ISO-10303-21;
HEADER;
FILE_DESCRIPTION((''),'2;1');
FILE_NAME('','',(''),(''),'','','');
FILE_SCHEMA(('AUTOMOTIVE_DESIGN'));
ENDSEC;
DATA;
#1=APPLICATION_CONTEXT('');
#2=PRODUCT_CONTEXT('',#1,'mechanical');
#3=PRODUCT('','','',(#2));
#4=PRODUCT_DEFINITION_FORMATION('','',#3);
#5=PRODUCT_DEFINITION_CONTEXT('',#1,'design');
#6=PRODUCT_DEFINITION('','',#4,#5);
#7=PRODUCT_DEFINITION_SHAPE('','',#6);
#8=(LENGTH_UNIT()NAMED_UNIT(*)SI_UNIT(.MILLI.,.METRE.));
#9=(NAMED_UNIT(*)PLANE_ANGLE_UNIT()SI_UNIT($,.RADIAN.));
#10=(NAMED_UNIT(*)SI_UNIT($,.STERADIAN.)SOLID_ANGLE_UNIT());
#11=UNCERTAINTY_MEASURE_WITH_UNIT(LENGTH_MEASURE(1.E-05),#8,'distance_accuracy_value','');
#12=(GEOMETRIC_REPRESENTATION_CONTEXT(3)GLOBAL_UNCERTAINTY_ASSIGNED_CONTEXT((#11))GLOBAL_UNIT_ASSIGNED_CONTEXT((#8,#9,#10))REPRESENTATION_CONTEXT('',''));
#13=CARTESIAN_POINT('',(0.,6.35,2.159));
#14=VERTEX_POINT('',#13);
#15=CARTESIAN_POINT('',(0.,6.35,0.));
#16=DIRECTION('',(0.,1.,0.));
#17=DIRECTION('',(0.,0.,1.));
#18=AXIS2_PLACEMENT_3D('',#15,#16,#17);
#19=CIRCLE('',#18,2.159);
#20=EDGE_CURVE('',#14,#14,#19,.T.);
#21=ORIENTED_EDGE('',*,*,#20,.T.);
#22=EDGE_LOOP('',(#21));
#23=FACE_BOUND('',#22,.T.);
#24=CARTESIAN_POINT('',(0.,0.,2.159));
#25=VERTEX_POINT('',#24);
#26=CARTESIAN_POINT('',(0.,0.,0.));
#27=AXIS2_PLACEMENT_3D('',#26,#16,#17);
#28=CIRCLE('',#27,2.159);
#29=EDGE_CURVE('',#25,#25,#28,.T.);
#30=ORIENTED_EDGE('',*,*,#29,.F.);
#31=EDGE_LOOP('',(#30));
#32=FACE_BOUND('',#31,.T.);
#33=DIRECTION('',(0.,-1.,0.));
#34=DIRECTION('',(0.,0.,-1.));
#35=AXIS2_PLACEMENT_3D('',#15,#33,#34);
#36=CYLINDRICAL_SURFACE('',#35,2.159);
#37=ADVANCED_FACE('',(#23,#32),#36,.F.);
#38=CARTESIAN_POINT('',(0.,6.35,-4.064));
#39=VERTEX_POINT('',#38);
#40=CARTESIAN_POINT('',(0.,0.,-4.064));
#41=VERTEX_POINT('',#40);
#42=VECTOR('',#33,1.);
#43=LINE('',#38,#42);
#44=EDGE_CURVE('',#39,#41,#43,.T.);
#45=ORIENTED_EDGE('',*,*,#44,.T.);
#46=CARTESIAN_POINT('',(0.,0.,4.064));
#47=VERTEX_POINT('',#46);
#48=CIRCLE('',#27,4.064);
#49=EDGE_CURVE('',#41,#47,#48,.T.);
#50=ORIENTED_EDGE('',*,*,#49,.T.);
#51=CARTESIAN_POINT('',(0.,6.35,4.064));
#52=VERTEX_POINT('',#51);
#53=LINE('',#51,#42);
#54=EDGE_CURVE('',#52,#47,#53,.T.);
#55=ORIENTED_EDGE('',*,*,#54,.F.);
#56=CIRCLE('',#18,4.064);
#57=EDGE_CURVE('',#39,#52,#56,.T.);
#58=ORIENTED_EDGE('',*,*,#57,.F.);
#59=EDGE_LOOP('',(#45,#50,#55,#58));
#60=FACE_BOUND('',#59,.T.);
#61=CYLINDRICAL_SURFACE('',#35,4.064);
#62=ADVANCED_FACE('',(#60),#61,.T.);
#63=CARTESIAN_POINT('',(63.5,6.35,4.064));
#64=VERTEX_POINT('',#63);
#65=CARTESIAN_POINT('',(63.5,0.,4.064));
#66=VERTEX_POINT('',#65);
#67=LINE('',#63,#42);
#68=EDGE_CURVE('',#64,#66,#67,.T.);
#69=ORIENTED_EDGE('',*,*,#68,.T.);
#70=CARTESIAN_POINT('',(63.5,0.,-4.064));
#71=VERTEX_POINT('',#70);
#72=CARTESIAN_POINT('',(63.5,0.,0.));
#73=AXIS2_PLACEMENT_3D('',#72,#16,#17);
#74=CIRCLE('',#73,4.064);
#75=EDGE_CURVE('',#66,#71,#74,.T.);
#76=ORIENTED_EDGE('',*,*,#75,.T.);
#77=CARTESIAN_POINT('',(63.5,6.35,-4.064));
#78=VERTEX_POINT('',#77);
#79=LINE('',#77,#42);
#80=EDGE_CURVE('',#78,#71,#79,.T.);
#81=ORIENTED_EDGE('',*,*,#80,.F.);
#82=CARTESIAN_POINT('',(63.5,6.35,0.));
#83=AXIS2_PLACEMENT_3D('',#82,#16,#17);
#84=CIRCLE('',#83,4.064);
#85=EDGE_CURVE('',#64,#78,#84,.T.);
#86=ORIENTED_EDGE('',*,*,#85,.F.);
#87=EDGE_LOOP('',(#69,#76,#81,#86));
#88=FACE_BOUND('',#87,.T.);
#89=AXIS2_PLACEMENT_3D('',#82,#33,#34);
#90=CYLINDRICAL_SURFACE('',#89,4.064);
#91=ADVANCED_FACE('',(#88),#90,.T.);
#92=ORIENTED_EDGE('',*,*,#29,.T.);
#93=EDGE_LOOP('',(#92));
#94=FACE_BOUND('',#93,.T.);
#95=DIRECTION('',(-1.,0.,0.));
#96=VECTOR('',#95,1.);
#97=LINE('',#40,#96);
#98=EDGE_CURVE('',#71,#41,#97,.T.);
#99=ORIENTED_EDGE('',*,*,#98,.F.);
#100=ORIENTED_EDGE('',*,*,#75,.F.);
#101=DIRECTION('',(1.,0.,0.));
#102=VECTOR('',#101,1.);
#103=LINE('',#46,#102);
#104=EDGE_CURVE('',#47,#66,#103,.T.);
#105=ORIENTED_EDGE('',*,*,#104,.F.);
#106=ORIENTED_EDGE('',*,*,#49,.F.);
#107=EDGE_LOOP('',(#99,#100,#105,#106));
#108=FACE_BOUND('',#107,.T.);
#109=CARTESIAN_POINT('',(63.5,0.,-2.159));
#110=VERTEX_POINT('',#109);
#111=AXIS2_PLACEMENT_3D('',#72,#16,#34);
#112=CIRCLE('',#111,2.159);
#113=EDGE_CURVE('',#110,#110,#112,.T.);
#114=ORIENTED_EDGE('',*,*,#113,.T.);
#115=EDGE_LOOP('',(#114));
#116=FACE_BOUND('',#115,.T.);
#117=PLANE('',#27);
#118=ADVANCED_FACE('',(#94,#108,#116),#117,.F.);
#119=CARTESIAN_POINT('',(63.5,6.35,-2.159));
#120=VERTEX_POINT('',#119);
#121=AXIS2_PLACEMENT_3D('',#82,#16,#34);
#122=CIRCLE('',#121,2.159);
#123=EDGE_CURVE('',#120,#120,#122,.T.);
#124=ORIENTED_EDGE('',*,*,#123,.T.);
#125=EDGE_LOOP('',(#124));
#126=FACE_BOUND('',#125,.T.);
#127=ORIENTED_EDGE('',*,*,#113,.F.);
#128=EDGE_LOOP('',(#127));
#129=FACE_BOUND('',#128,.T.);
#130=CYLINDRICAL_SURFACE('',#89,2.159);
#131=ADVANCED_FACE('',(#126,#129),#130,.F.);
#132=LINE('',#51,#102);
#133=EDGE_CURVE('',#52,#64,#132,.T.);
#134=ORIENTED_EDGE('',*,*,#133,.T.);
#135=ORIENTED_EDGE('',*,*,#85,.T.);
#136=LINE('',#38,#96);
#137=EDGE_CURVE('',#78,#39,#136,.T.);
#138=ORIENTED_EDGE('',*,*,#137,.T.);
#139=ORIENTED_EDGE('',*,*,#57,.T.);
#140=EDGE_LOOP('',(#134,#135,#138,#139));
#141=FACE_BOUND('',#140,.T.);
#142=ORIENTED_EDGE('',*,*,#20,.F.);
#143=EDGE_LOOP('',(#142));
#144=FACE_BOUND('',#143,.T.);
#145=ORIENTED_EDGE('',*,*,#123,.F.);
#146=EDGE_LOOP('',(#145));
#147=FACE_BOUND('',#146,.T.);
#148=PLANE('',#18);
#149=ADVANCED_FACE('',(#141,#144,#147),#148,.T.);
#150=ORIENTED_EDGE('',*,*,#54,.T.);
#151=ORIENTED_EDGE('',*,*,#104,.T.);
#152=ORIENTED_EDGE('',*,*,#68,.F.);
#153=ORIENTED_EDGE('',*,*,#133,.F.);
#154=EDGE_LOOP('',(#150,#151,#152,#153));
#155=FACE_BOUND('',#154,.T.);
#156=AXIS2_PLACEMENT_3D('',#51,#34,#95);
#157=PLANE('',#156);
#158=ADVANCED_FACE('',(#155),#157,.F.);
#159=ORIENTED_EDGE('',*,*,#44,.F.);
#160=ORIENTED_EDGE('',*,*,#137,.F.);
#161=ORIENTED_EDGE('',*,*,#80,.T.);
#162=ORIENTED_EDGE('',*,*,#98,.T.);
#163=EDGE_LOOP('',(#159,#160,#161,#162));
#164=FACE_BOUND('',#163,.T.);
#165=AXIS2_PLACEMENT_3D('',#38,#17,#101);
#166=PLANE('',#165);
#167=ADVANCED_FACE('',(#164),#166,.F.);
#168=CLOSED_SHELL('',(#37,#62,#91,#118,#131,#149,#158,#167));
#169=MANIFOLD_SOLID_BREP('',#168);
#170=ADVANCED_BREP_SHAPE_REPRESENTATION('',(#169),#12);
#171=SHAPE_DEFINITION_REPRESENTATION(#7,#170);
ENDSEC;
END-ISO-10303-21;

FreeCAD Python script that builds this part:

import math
import FreeCAD as App
import Part
import Sketcher
from FreeCAD import Vector
Q = App.Units.Quantity

doc = App.newDocument("Part")
body = doc.addObject("PartDesign::Body", "Body")

# Sketch on XZ plane
sketch1 = doc.addObject("Sketcher::SketchObject", "Sketch")
body.addObject(sketch1)
sketch1.AttachmentSupport = (doc.XZ_Plane, [""])
sketch1.MapMode = "FlatFace"
sketch1.addGeometry([
    Part.LineSegment(Vector(63.5, -4.064, 0), Vector(0, -4.064, 0)),  # 0
    Part.ArcOfCircle(Part.Circle(Vector(0, 0, 0), Vector(0, 0, 1), 4.064), math.radians(90), math.radians(270)),  # 1
    Part.LineSegment(Vector(0, 4.064, 0), Vector(63.5, 4.064, 0)),  # 2
    Part.ArcOfCircle(Part.Circle(Vector(63.5, 0, 0), Vector(0, 0, 1), 4.064), math.radians(-90), math.radians(90)),  # 3
    Part.Circle(Vector(63.5, 0, 0), Vector(0, 0, 1), 2.159),  # 4
    Part.Circle(Vector(0, 0, 0), Vector(0, 0, 1), 2.159),  # 5
], False)
sketch1.addConstraint([
    Sketcher.Constraint("Tangent", 0, 2, 1, 2),
    Sketcher.Constraint("Tangent", 1, 1, 2, 1),
    Sketcher.Constraint("Tangent", 2, 2, 3, 2),
    Sketcher.Constraint("Tangent", 3, 1, 0, 1),
    Sketcher.Constraint("Horizontal", 0),
    Sketcher.Constraint("Horizontal", 2),
    Sketcher.Constraint("Coincident", 1, 3, -1, 1),
    Sketcher.Constraint("Coincident", 5, 3, -1, 1),
    Sketcher.Constraint("Coincident", 4, 3, 3, 3),
    Sketcher.Constraint("Equal", 4, 5),
    Sketcher.Constraint("Diameter", 4, Q("0.17 in")),
    Sketcher.Constraint("Radius", 1, Q("0.16 in")),
    Sketcher.Constraint("DistanceX", 0, 2, 0, 1, Q("2.5 in")),
])
pad1 = doc.addObject("PartDesign::Pad", "Pad")
body.addObject(pad1)
pad1.Profile = sketch1
pad1.Length = Q("0.25 in")
pad1.Reversed = True

doc.recompute()
